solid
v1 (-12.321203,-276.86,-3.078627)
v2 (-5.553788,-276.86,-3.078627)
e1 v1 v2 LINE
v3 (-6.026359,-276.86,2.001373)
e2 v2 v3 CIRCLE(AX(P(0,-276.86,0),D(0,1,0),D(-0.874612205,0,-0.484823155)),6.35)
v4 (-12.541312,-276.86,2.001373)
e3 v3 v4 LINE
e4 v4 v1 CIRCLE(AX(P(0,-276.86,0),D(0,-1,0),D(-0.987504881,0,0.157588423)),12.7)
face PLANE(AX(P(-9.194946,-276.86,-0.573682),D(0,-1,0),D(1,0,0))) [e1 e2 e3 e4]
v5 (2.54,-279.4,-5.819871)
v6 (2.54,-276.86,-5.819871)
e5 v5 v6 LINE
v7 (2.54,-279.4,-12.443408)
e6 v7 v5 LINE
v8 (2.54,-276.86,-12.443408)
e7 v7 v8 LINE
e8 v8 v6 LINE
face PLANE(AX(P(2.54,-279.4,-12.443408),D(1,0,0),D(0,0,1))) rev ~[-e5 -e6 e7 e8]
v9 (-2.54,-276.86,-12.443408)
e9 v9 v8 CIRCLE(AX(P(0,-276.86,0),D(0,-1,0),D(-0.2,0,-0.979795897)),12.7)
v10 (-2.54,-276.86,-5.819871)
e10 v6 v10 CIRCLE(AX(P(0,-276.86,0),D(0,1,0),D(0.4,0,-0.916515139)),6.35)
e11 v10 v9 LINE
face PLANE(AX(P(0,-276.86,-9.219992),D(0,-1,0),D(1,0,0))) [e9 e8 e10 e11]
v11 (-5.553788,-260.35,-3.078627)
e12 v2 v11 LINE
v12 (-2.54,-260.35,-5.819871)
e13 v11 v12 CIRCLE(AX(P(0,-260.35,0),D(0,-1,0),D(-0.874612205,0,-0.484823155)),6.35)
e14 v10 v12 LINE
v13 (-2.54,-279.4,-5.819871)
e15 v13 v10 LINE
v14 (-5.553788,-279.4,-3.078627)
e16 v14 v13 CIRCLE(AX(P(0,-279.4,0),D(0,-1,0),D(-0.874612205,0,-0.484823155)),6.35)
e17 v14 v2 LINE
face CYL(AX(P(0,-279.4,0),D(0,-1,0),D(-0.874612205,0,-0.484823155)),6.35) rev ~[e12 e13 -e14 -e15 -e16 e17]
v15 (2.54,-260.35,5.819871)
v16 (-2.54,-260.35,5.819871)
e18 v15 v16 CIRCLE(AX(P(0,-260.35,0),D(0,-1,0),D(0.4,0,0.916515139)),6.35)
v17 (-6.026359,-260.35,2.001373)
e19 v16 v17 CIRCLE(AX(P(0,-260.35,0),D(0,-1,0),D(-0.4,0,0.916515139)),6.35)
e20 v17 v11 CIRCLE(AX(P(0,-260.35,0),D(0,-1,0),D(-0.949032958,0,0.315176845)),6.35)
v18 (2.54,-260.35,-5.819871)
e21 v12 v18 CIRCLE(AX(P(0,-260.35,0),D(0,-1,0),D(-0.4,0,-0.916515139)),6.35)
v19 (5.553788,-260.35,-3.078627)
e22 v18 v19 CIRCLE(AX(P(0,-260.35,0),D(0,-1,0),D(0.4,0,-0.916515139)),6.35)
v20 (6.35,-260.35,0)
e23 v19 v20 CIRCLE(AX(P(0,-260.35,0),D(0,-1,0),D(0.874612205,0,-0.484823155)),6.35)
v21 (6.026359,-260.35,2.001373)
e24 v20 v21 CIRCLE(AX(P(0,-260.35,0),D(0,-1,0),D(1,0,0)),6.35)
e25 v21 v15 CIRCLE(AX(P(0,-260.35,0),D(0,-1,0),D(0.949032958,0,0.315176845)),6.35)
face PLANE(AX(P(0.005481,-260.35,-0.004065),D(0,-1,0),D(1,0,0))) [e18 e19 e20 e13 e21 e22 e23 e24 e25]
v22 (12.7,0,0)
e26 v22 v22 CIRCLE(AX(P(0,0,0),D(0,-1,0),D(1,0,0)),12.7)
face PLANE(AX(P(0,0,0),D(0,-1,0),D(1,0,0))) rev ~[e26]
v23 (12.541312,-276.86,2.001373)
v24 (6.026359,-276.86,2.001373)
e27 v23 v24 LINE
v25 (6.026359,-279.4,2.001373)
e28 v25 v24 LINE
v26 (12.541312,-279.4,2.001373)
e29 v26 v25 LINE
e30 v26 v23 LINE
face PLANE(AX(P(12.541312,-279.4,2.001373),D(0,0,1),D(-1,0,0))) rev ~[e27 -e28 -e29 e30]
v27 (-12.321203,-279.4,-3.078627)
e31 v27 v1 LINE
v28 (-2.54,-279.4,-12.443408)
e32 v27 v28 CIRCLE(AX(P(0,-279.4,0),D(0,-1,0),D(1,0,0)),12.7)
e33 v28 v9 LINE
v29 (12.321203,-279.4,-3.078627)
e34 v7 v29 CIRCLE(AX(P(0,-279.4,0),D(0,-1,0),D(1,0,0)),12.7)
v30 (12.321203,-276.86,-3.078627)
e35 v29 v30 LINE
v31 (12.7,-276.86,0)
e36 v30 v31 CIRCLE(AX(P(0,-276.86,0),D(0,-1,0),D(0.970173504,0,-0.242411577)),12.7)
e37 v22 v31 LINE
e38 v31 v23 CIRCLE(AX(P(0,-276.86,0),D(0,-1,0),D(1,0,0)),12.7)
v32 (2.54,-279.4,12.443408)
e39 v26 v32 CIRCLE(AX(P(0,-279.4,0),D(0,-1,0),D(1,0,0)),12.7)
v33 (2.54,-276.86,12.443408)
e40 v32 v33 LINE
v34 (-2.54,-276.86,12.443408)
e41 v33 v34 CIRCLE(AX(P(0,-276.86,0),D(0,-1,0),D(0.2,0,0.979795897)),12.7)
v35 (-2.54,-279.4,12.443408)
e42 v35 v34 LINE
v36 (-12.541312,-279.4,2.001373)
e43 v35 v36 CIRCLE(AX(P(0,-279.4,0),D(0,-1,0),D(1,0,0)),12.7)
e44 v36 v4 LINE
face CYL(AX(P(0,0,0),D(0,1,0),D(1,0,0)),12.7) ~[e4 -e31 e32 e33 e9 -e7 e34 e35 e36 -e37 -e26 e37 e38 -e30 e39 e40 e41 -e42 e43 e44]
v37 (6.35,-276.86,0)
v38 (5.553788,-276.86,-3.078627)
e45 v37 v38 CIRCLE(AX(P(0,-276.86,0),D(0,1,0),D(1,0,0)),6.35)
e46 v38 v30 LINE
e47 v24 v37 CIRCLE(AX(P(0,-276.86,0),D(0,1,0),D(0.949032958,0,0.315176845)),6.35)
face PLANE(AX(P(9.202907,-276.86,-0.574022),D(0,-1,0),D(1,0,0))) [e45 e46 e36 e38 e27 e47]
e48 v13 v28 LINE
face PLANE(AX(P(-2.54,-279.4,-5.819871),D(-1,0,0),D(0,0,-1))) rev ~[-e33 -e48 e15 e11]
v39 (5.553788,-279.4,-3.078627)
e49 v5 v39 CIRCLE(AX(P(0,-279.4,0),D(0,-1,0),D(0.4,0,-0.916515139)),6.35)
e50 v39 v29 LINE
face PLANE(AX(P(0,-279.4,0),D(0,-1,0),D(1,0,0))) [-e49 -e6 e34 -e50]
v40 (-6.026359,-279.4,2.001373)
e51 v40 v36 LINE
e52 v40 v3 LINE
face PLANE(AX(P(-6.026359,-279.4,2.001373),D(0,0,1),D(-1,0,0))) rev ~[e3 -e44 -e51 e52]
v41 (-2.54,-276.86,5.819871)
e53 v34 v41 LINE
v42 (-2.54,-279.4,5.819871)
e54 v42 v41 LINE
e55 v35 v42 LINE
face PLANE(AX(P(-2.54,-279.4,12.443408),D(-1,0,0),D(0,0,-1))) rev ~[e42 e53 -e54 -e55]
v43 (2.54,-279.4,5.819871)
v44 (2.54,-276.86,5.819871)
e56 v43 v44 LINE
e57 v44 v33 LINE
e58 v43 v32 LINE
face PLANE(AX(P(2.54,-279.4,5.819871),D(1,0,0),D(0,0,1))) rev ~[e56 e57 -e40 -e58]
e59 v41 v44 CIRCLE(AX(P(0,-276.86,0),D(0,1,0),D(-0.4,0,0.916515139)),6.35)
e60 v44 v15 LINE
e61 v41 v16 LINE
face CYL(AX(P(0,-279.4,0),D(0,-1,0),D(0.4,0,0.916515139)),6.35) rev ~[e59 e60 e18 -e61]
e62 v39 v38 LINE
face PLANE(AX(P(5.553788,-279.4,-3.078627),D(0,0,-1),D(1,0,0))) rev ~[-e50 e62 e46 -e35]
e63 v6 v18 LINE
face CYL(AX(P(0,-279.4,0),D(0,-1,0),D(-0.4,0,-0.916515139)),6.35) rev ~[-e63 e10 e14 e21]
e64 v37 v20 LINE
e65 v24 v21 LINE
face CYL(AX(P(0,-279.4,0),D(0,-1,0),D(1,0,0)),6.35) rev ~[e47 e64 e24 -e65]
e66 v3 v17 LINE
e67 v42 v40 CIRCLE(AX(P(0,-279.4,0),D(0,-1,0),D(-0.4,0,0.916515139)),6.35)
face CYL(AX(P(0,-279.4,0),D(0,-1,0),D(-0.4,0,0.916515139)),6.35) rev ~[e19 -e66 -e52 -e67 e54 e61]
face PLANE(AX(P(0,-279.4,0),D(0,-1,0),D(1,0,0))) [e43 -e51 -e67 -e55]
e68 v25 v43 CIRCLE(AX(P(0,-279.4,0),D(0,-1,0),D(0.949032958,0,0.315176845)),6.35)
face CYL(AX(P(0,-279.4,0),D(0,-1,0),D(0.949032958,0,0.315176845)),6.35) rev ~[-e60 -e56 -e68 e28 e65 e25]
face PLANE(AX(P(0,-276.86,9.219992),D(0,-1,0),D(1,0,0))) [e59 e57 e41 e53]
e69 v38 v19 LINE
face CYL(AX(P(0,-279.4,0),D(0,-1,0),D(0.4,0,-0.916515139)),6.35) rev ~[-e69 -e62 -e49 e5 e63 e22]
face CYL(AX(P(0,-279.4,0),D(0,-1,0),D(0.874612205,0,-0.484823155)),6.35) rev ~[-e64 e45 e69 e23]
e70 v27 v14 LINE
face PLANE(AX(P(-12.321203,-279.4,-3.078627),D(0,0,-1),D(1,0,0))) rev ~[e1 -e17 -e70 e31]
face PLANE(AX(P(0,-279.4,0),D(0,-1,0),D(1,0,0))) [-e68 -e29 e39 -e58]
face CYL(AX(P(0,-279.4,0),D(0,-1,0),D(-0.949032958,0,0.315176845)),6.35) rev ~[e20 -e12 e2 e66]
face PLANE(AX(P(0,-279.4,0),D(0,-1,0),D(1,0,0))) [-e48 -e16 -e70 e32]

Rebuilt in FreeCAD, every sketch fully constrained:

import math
import FreeCAD as App
import Part
import Sketcher
from FreeCAD import Vector
Q = App.Units.Quantity

doc = App.newDocument("Part")
body = doc.addObject("PartDesign::Body", "Body")

# Sketch on XZ plane
sketch1 = body.newObject("Sketcher::SketchObject", "Sketch")
sketch1.AttachmentSupport = (doc.getObject("XZ_Plane"), [""])
sketch1.MapMode = "FlatFace"
sketch1.addGeometry(Part.Circle(Vector(0, 0, 0), Vector(0, 0, 1), 13), False)
sketch1.addConstraint([
    Sketcher.Constraint("Coincident", 0, 3, -1, 1),
    Sketcher.Constraint("Diameter", 0, Q("1 in")),
])
pad1 = body.newObject("PartDesign::Pad", "Pad")
pad1.Profile = sketch1
pad1.Length = Q("11 in")

# Sketch on XZ plane
sketch2 = body.newObject("Sketcher::SketchObject", "Sketch001")
sketch2.AttachmentSupport = (doc.getObject("XZ_Plane"), [""])
sketch2.MapMode = "FlatFace"
sketch2.AttachmentOffset = App.Placement(Vector(0, 0, 11 * 25.4), App.Rotation())
sketch2.addGeometry([
    Part.ArcOfCircle(Part.Circle(Vector(0, 0, 0), Vector(0, 0, 1), 6.3), math.radians(162), math.radians(209)),  # 0
    Part.LineSegment(Vector(-6, 2, 0), Vector(-12.5, 2, 0)),  # 1
    Part.ArcOfCircle(Part.Circle(Vector(0, 0, 0), Vector(0, 0, 1), 12.7), math.radians(171), math.radians(194)),  # 2
    Part.LineSegment(Vector(-12.3, -3.1, 0), Vector(-5.6, -3.1, 0)),  # 3
    Part.ArcOfCircle(Part.Circle(Vector(0, 0, 0), Vector(0, 0, 1), 6.3), math.radians(66), math.radians(114)),  # 4
    Part.LineSegment(Vector(2.5, 5.8, 0), Vector(2.5, 12.4, 0)),  # 5
    Part.ArcOfCircle(Part.Circle(Vector(0, 0, 0), Vector(0, 0, 1), 12.7), math.radians(78), math.radians(102)),  # 6
    Part.LineSegment(Vector(-2.5, 12.4, 0), Vector(-2.5, 5.8, 0)),  # 7
    Part.ArcOfCircle(Part.Circle(Vector(0, 0, 0), Vector(0, 0, 1), 6.4), math.radians(0), math.radians(18.37)),  # 8
    Part.ArcOfCircle(Part.Circle(Vector(0, 0, 0), Vector(0, 0, 1), 6.3), math.radians(-29), math.radians(0)),  # 9
    Part.LineSegment(Vector(5.6, -3.1, 0), Vector(12.3, -3.1, 0)),  # 10
    Part.ArcOfCircle(Part.Circle(Vector(0, 0, 0), Vector(0, 0, 1), 12.7), math.radians(-14.03), math.radians(0)),  # 11
    Part.ArcOfCircle(Part.Circle(Vector(0, 0, 0), Vector(0, 0, 1), 12.7), math.radians(0), math.radians(9.07)),  # 12
    Part.LineSegment(Vector(12.5, 2, 0), Vector(6, 2, 0)),  # 13
    Part.LineSegment(Vector(2.5, -12.4, 0), Vector(2.5, -5.8, 0)),  # 14
    Part.ArcOfCircle(Part.Circle(Vector(0, 0, 0), Vector(0, 0, 1), 6.3), math.radians(-114), math.radians(-66)),  # 15
    Part.LineSegment(Vector(-2.5, -5.8, 0), Vector(-2.5, -12.4, 0)),  # 16
    Part.ArcOfCircle(Part.Circle(Vector(0, 0, 0), Vector(0, 0, 1), 12.7), math.radians(-102), math.radians(-78)),  # 17
], False)
sketch2.addConstraint([
    Sketcher.Constraint("Coincident", 0, 1, 1, 1),
    Sketcher.Constraint("Coincident", 1, 2, 2, 1),
    Sketcher.Constraint("Coincident", 2, 2, 3, 1),
    Sketcher.Constraint("Coincident", 3, 2, 0, 2),
    Sketcher.Constraint("Coincident", 4, 1, 5, 1),
    Sketcher.Constraint("Coincident", 5, 2, 6, 1),
    Sketcher.Constraint("Coincident", 6, 2, 7, 1),
    Sketcher.Constraint("Coincident", 7, 2, 4, 2),
    Sketcher.Constraint("Tangent", 8, 1, 9, 2),
    Sketcher.Constraint("Coincident", 9, 1, 10, 1),
    Sketcher.Constraint("Coincident", 10, 2, 11, 1),
    Sketcher.Constraint("Tangent", 11, 2, 12, 1),
    Sketcher.Constraint("Coincident", 12, 2, 13, 1),
    Sketcher.Constraint("Coincident", 13, 2, 8, 2),
    Sketcher.Constraint("Coincident", 14, 2, 15, 2),
    Sketcher.Constraint("Coincident", 15, 1, 16, 1),
    Sketcher.Constraint("Coincident", 16, 2, 17, 1),
    Sketcher.Constraint("Coincident", 17, 2, 14, 1),
    Sketcher.Constraint("Horizontal", 1),
    Sketcher.Constraint("Horizontal", 3),
    Sketcher.Constraint("Vertical", 5),
    Sketcher.Constraint("Vertical", 7),
    Sketcher.Constraint("Horizontal", 10),
    Sketcher.Constraint("Horizontal", 13),
    Sketcher.Constraint("Vertical", 14),
    Sketcher.Constraint("Vertical", 16),
    Sketcher.Constraint("Coincident", 0, 3, -1, 1),
    Sketcher.Constraint("Coincident", 2, 3, -1, 1),
    Sketcher.Constraint("Coincident", 4, 3, -1, 1),
    Sketcher.Constraint("Coincident", 6, 3, -1, 1),
    Sketcher.Constraint("Coincident", 8, 3, -1, 1),
    Sketcher.Constraint("Coincident", 11, 3, -1, 1),
    Sketcher.Constraint("Coincident", 15, 3, -1, 1),
    Sketcher.Constraint("Coincident", 17, 3, -1, 1),
    Sketcher.Constraint("Equal", 0, 4),
    Sketcher.Constraint("Equal", 2, 6),
    Sketcher.Constraint("Equal", 4, 8),
    Sketcher.Constraint("Equal", 8, 9),
    Sketcher.Constraint("Equal", 6, 11),
    Sketcher.Constraint("Equal", 11, 12),
    Sketcher.Constraint("Equal", 9, 15),
    Sketcher.Constraint("Equal", 12, 17),
    Sketcher.Constraint("PointOnObject", 8, 1, -1),
    Sketcher.Constraint("PointOnObject", 11, 2, -1),
    Sketcher.Constraint("Horizontal", 5, 2, 6, 2),
    Sketcher.Constraint("Horizontal", 3, 2, 9, 1),
    Sketcher.Constraint("Horizontal", 1, 2, 12, 2),
    Sketcher.Constraint("Horizontal", 14, 2, 15, 1),
    Sketcher.Constraint("Vertical", 5, 2, 14, 2),
    Sketcher.Constraint("Radius", 2, Q("0.5 in")),
    Sketcher.Constraint("Radius", 0, Q("0.25 in")),
    Sketcher.Constraint("DistanceX", -1, 1, 4, 1, Q("0.1 in")),
    Sketcher.Constraint("DistanceY", 2, 2, 1, 2, Q("0.2 in")),
    Sketcher.Constraint("DistanceY", 0, 1, 7, 2, Q("3.818498 mm")),
])
pocket1 = body.newObject("PartDesign::Pocket", "Pocket")
pocket1.Profile = sketch2
pocket1.Length = Q("0.1 in")

# Sketch on XZ plane
sketch3 = body.newObject("Sketcher::SketchObject", "Sketch002")
sketch3.AttachmentSupport = (doc.getObject("XZ_Plane"), [""])
sketch3.MapMode = "FlatFace"
sketch3.AttachmentOffset = App.Placement(Vector(0, 0, 11 * 25.4), App.Rotation())
sketch3.addGeometry([
    Part.ArcOfCircle(Part.Circle(Vector(0, 0, 0), Vector(0, 0, 1), 6.3), math.radians(-29), math.radians(0)),  # 0
    Part.ArcOfCircle(Part.Circle(Vector(0, 0, 0), Vector(0, 0, 1), 6.4), math.radians(0), math.radians(18.37)),  # 1
    Part.ArcOfCircle(Part.Circle(Vector(0, 0, 0), Vector(0, 0, 1), 6.3), math.radians(18), math.radians(66)),  # 2
    Part.ArcOfCircle(Part.Circle(Vector(0, 0, 0), Vector(0, 0, 1), 6.3), math.radians(66), math.radians(114)),  # 3
    Part.ArcOfCircle(Part.Circle(Vector(0, 0, 0), Vector(0, 0, 1), 6.3), math.radians(114), math.radians(162)),  # 4
    Part.ArcOfCircle(Part.Circle(Vector(0, 0, 0), Vector(0, 0, 1), 6.3), math.radians(162), math.radians(209)),  # 5
    Part.ArcOfCircle(Part.Circle(Vector(0, 0, 0), Vector(0, 0, 1), 6.3), math.radians(-151), math.radians(-114)),  # 6
    Part.ArcOfCircle(Part.Circle(Vector(0, 0, 0), Vector(0, 0, 1), 6.3), math.radians(-114), math.radians(-66)),  # 7
    Part.ArcOfCircle(Part.Circle(Vector(0, 0, 0), Vector(0, 0, 1), 6.3), math.radians(-66), math.radians(-29)),  # 8
], False)
sketch3.addConstraint([
    Sketcher.Constraint("Tangent", 0, 2, 1, 1),
    Sketcher.Constraint("Tangent", 1, 2, 2, 1),
    Sketcher.Constraint("Tangent", 2, 2, 3, 1),
    Sketcher.Constraint("Tangent", 3, 2, 4, 1),
    Sketcher.Constraint("Tangent", 4, 2, 5, 1),
    Sketcher.Constraint("Tangent", 5, 2, 6, 1),
    Sketcher.Constraint("Tangent", 6, 2, 7, 1),
    Sketcher.Constraint("Tangent", 7, 2, 8, 1),
    Sketcher.Constraint("Tangent", 8, 2, 0, 1),
    Sketcher.Constraint("Coincident", 0, 3, -1, 1),
    Sketcher.Constraint("Coincident", 2, 3, -1, 1),
    Sketcher.Constraint("Coincident", 4, 3, -1, 1),
    Sketcher.Constraint("Coincident", 6, 3, -1, 1),
    Sketcher.Constraint("PointOnObject", 0, 2, -1),
    Sketcher.Constraint("Horizontal", 2, 2, 3, 2),
    Sketcher.Constraint("Horizontal", 1, 2, 4, 2),
    Sketcher.Constraint("Horizontal", 6, 2, 7, 2),
    Sketcher.Constraint("Horizontal", 5, 2, 8, 2),
    Sketcher.Constraint("Vertical", 3, 2, 6, 2),
    Sketcher.Constraint("Radius", 0, Q("0.25 in")),
    Sketcher.Constraint("DistanceX", -1, 1, 2, 2, Q("0.1 in")),
    Sketcher.Constraint("DistanceY", 5, 2, 4, 2, Q("0.2 in")),
    Sketcher.Constraint("DistanceY", 1, 2, 2, 2, Q("3.818498 mm")),
])
pocket2 = body.newObject("PartDesign::Pocket", "Pocket001")
pocket2.Profile = sketch3
pocket2.Length = Q("0.75 in")

doc.recompute()
